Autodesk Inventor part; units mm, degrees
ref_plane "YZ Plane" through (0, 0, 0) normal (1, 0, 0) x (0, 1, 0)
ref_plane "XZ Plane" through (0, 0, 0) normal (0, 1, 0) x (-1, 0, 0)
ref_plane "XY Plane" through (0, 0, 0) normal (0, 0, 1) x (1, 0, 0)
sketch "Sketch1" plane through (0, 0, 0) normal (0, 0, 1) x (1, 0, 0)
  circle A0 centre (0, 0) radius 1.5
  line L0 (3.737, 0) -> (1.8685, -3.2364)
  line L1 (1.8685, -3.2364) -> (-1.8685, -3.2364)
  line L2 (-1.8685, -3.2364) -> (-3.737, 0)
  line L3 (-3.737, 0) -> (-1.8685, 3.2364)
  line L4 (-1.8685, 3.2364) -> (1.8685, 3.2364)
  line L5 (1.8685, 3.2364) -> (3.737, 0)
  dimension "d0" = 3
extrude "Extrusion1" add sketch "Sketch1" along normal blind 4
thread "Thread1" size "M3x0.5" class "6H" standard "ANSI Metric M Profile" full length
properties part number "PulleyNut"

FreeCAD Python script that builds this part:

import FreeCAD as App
import Part
import Sketcher
Q = App.Units.Quantity

doc = App.newDocument("Part")
params = doc.addObject("Spreadsheet::Sheet", "Params")
for row, (alias, value) in enumerate([
    ("sketch1_diameter", "3 mm"),
    ("pad1_length", "4 mm"),
], start=1):
    params.set(f"A{row}", alias)
    params.set(f"B{row}", "=" + value)
    params.setAlias(f"B{row}", alias)

body = doc.addObject("PartDesign::Body", "Body")

# Sketch on XY plane
sketch1 = body.newObject("Sketcher::SketchObject", "Sketch")
sketch1.AttachmentSupport = (doc.getObject("XY_Plane"), [""])
sketch1.MapMode = "FlatFace"
sketch1.addGeometry([
    Part.LineSegment(App.Vector(1.9, -3.2, 0), App.Vector(3.7, 0, 0)),  # 0
    Part.LineSegment(App.Vector(3.7, 0, 0), App.Vector(1.9, 3.2, 0)),  # 1
    Part.LineSegment(App.Vector(1.9, 3.2, 0), App.Vector(-1.9, 3.2, 0)),  # 2
    Part.LineSegment(App.Vector(-1.9, 3.2, 0), App.Vector(-3.7, 0, 0)),  # 3
    Part.LineSegment(App.Vector(-3.7, 0, 0), App.Vector(-1.9, -3.2, 0)),  # 4
    Part.LineSegment(App.Vector(-1.9, -3.2, 0), App.Vector(1.9, -3.2, 0)),  # 5
    Part.Circle(App.Vector(0, 0, 0), App.Vector(0, 0, 1), 1.5),  # 6
], False)
sketch1.addConstraint([
    Sketcher.Constraint("Coincident", 0, 2, 1, 1),
    Sketcher.Constraint("Coincident", 1, 2, 2, 1),
    Sketcher.Constraint("Coincident", 2, 2, 3, 1),
    Sketcher.Constraint("Coincident", 3, 2, 4, 1),
    Sketcher.Constraint("Coincident", 4, 2, 5, 1),
    Sketcher.Constraint("Coincident", 5, 2, 0, 1),
    Sketcher.Constraint("Horizontal", 2),
    Sketcher.Constraint("Horizontal", 5),
    Sketcher.Constraint("Coincident", 6, 3, -1, 1),
    Sketcher.Constraint("Symmetric", 0, 2, 3, 2, -1, 1),
    Sketcher.Constraint("Symmetric", 1, 2, 4, 2, -1, 1),
    Sketcher.Constraint("PointOnObject", 0, 2, -1),
    Sketcher.Constraint("Parallel", 0, 3),
    Sketcher.Constraint("Vertical", 2, 2, 4, 2),
    Sketcher.Constraint("Diameter", 6, 3.0),
    Sketcher.Constraint("Angle", 0, Q("60.0005 deg")),
    Sketcher.Constraint("DistanceX", 2, 2, 2, 1, 3.737),
    Sketcher.Constraint("Distance", 0, 3.737),
])
sketch1.setExpression("Constraints[14]", "Params.sketch1_diameter")
pad1 = body.newObject("PartDesign::Pad", "Pad")
pad1.Profile = sketch1
pad1.setExpression("Length", "Params.pad1_length")

doc.recompute()
